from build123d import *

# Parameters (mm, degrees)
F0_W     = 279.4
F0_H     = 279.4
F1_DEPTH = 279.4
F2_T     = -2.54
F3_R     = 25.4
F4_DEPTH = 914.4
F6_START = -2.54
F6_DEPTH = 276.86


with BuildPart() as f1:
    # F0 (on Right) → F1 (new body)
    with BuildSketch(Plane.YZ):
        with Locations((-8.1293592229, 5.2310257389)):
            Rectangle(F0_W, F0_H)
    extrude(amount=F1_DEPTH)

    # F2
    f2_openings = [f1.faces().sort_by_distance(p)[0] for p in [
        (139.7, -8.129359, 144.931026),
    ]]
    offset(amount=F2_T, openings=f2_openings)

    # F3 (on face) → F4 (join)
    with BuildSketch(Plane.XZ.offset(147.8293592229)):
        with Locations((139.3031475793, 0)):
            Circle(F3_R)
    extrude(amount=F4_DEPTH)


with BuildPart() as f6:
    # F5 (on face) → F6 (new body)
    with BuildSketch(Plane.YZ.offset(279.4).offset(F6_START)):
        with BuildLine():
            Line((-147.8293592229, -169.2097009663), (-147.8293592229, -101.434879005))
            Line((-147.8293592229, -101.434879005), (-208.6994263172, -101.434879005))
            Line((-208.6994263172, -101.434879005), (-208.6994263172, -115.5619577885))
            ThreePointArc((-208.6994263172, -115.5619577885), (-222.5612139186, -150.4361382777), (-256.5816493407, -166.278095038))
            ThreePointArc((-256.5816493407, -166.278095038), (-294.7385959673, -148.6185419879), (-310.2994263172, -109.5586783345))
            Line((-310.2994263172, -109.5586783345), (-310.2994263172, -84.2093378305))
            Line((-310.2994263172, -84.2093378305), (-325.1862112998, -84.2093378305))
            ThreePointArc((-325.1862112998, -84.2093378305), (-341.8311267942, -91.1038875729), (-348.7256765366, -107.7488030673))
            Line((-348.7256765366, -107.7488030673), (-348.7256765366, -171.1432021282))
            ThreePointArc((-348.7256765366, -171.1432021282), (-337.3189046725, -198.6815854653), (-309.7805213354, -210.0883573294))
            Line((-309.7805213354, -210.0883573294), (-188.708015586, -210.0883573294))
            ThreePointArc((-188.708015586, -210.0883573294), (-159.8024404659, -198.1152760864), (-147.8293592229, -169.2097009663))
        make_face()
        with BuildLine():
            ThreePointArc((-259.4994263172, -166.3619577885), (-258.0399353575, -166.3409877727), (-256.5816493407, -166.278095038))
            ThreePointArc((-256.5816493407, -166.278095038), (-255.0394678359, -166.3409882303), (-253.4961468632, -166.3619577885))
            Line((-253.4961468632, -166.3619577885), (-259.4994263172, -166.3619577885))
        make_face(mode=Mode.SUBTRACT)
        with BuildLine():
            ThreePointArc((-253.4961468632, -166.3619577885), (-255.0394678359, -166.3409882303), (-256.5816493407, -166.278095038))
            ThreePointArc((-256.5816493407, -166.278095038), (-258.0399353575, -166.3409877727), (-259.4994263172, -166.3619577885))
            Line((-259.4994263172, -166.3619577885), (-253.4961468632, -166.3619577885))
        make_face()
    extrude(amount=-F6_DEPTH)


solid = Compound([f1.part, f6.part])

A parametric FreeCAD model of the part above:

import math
import FreeCAD as App
import Part
import Sketcher
Q = App.Units.Quantity


def faces_at(feature, points):
    """Names of the faces that lie closest to the given points."""
    faces = feature.Shape.Faces
    near = lambda p: min(range(len(faces)), key=lambda i: faces[i].distToShape(Part.Vertex(*p))[0])
    return sorted({f"Face{near(p) + 1}" for p in points})


def add_polygon(sketch, points):
    """Adds a closed chain of lines whose ends are joined by coincident constraints."""
    first, n = sketch.GeometryCount, len(points)
    for a, b in zip(points, points[1:] + points[:1]):
        sketch.addGeometry(Part.LineSegment(App.Vector(*a, 0), App.Vector(*b, 0)), False)
    for i in range(n):
        sketch.addConstraint(Sketcher.Constraint("Coincident", first + i, 2, first + (i + 1) % n, 1))

doc = App.newDocument("Part")
body = doc.addObject("PartDesign::Body", "Body")

# Sketch on YZ plane
sketch1 = body.newObject("Sketcher::SketchObject", "Sketch")
sketch1.AttachmentSupport = (doc.getObject("YZ_Plane"), [""])
sketch1.MapMode = "FlatFace"
add_polygon(sketch1, [(-148, 145), (-148, -134), (132, -134), (132, 145)])  # lines 0-3
sketch1.addConstraint([
    Sketcher.Constraint("Vertical", 0),
    Sketcher.Constraint("Horizontal", 1),
    Sketcher.Constraint("Vertical", 2),
    Sketcher.Constraint("Horizontal", 3),
    Sketcher.Constraint("Equal", 3, 0),
    Sketcher.Constraint("DistanceX", 1, 1, 1, 2, Q("11 in")),
    Sketcher.Constraint("DistanceX", 0, 2, -1, 1, 147.829359),
    Sketcher.Constraint("DistanceY", 0, 2, -1, 1, 134.468974),
])
pad1 = body.newObject("PartDesign::Pad", "Pad")
pad1.Profile = sketch1
pad1.Length = Q("11 in")
doc.recompute()

thickness = body.newObject("PartDesign::Thickness", "Thickness")
thickness.Base = (pad1, faces_at(pad1, [(139.7, -8.129, 144.931)]))
thickness.Value = Q("0.1 in")
thickness.Reversed = True
thickness.Join = "Arc"

# Sketch on XZ plane
sketch2 = body.newObject("Sketcher::SketchObject", "Sketch001")
sketch2.AttachmentSupport = (doc.getObject("XZ_Plane"), [""])
sketch2.MapMode = "FlatFace"
sketch2.AttachmentOffset = App.Placement(App.Vector(0, 0, 147.829359), App.Rotation())
sketch2.addGeometry(Part.Circle(App.Vector(139, 0, 0), App.Vector(0, 0, 1), 25), False)
sketch2.addConstraint([
    Sketcher.Constraint("PointOnObject", 0, 3, -1),
    Sketcher.Constraint("Diameter", 0, Q("2 in")),
    Sketcher.Constraint("DistanceX", -1, 1, 0, 3, 139.303148),
])
pad2 = body.newObject("PartDesign::Pad", "Pad001")
pad2.Profile = sketch2
pad2.Length = Q("36 in")
body2 = doc.addObject("PartDesign::Body", "Body001")

# Sketch on YZ plane
sketch3 = body2.newObject("Sketcher::SketchObject", "Sketch002")
sketch3.AttachmentSupport = (doc.getObject("YZ_Plane001"), [""])
sketch3.MapMode = "FlatFace"
sketch3.AttachmentOffset = App.Placement(App.Vector(0, 0, 10.9 * 25.4), App.Rotation())
sketch3.addGeometry([
    Part.LineSegment(App.Vector(-310, -210, 0), App.Vector(-189, -210, 0)),  # 0
    Part.ArcOfCircle(Part.Circle(App.Vector(-189, -169, 0), App.Vector(0, 0, 1), 41), math.radians(-90), math.radians(0)),  # 1
    Part.LineSegment(App.Vector(-148, -169, 0), App.Vector(-148, -101, 0)),  # 2
    Part.LineSegment(App.Vector(-148, -101, 0), App.Vector(-209, -101, 0)),  # 3
    Part.LineSegment(App.Vector(-209, -101, 0), App.Vector(-209, -116, 0)),  # 4
    Part.ArcOfCircle(Part.Circle(App.Vector(-259, -116, 0), App.Vector(0, 0, 1), 51), math.radians(-87), math.radians(0)),  # 5
    Part.ArcOfCircle(Part.Circle(App.Vector(-253, -110, 0), App.Vector(0, 0, 1), 57), math.radians(-180), math.radians(-93)),  # 6
    Part.LineSegment(App.Vector(-310, -110, 0), App.Vector(-310, -84, 0)),  # 7
    Part.LineSegment(App.Vector(-310, -84, 0), App.Vector(-325, -84, 0)),  # 8
    Part.ArcOfCircle(Part.Circle(App.Vector(-325, -108, 0), App.Vector(0, 0, 1), 24), math.radians(90), math.radians(180)),  # 9
    Part.LineSegment(App.Vector(-349, -108, 0), App.Vector(-349, -171, 0)),  # 10
    Part.ArcOfCircle(Part.Circle(App.Vector(-310, -171, 0), App.Vector(0, 0, 1), 39), math.radians(180), math.radians(270)),  # 11
], False)
sketch3.addConstraint([
    Sketcher.Constraint("Tangent", 0, 2, 1, 1),
    Sketcher.Constraint("Tangent", 1, 2, 2, 1),
    Sketcher.Constraint("Coincident", 2, 2, 3, 1),
    Sketcher.Constraint("Coincident", 3, 2, 4, 1),
    Sketcher.Constraint("Tangent", 4, 2, 5, 2),
    Sketcher.Constraint("Coincident", 5, 1, 6, 2),
    Sketcher.Constraint("Tangent", 6, 1, 7, 1),
    Sketcher.Constraint("Coincident", 7, 2, 8, 1),
    Sketcher.Constraint("Tangent", 8, 2, 9, 1),
    Sketcher.Constraint("Tangent", 9, 2, 10, 1),
    Sketcher.Constraint("Tangent", 10, 2, 11, 1),
    Sketcher.Constraint("Tangent", 11, 2, 0, 1),
    Sketcher.Constraint("Horizontal", 0),
    Sketcher.Constraint("Vertical", 2),
    Sketcher.Constraint("Horizontal", 3),
    Sketcher.Constraint("Vertical", 4),
    Sketcher.Constraint("Vertical", 7),
    Sketcher.Constraint("Horizontal", 8),
    Sketcher.Constraint("Vertical", 10),
    Sketcher.Constraint("Radius", 5, Q("2 in")),
    Sketcher.Constraint("DistanceX", 6, 1, 5, 3, Q("2 in")),
    Sketcher.Constraint("DistanceY", 2, 1, 2, 2, Q("2.6683001 in")),
    Sketcher.Constraint("Radius", 6, 56.803279),
    Sketcher.Constraint("DistanceY", 10, 2, 10, 1, 63.394399),
    Sketcher.Constraint("Radius", 1, 40.878656),
    Sketcher.Constraint("Radius", 9, 23.539465),
    Sketcher.Constraint("Radius", 11, 38.945155),
    Sketcher.Constraint("DistanceY", 4, 2, 4, 1, 14.127079),
    Sketcher.Constraint("DistanceY", 7, 1, 7, 2, 25.349341),
    Sketcher.Constraint("DistanceY", 1, 3, -1, 1, 169.209701),
    Sketcher.Constraint("DistanceX", 0, 1, 0, 2, 121.072506),
    Sketcher.Constraint("DistanceX", 3, 2, 3, 1, 60.870067),
    Sketcher.Constraint("DistanceX", 9, 3, -1, 1, 325.186211),
])
pad3 = body2.newObject("PartDesign::Pad", "Pad002")
pad3.Profile = sketch3
pad3.Length = Q("10.9 in")
pad3.Reversed = True

doc.recompute()
